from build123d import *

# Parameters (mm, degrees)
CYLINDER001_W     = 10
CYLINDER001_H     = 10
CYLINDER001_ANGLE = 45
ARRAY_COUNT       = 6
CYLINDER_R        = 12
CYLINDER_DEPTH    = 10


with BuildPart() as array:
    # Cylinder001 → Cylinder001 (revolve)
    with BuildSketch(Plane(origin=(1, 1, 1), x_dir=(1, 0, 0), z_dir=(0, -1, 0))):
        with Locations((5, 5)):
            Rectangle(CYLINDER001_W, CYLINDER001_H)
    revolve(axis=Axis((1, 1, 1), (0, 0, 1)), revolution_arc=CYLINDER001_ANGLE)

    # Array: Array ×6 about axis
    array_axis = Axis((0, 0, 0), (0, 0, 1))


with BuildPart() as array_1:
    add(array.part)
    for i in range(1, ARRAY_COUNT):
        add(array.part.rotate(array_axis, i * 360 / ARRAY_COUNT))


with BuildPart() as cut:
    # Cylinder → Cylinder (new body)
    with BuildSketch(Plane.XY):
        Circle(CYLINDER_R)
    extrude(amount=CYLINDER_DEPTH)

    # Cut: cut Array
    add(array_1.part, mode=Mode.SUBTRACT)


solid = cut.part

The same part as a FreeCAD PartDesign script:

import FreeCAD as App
import Part
import Sketcher
from FreeCAD import Vector


def add_polygon(sketch, points):
    """Adds a closed chain of lines whose ends are joined by coincident constraints."""
    first, n = sketch.GeometryCount, len(points)
    for a, b in zip(points, points[1:] + points[:1]):
        sketch.addGeometry(Part.LineSegment(App.Vector(*a, 0), App.Vector(*b, 0)), False)
    for i in range(n):
        sketch.addConstraint(Sketcher.Constraint("Coincident", first + i, 2, first + (i + 1) % n, 1))

doc = App.newDocument("Part")
body = doc.addObject("PartDesign::Body", "Body")

# Sketch on XZ plane
sketch1 = body.newObject("Sketcher::SketchObject", "Sketch")
sketch1.AttachmentSupport = (doc.getObject("XZ_Plane"), [""])
sketch1.MapMode = "FlatFace"
sketch1.AttachmentOffset = App.Placement(Vector(0, 0, -1), App.Rotation())
add_polygon(sketch1, [(1, 11), (1, 1), (11, 1), (11, 11)])  # lines 0-3
sketch1.addGeometry(Part.LineSegment(Vector(1, 1, 0), Vector(1, 11, 0)), True)  # axis
sketch1.addConstraint([
    Sketcher.Constraint("Vertical", 0),
    Sketcher.Constraint("Horizontal", 1),
    Sketcher.Constraint("Vertical", 2),
    Sketcher.Constraint("Horizontal", 3),
    Sketcher.Constraint("Vertical", 4),
    Sketcher.Constraint("Coincident", 4, 1, 0, 2),
    Sketcher.Constraint("Horizontal", 2, 2, 4, 2),
    Sketcher.Constraint("Equal", 3, 0),
    Sketcher.Constraint("DistanceX", 1, 1, 1, 2, 10.0),
    Sketcher.Constraint("DistanceX", -1, 1, 0, 2, 1.0),
    Sketcher.Constraint("DistanceY", -1, 1, 0, 2, 1.0),
])
revolution = body.newObject("PartDesign::Revolution", "Revolution")
revolution.Profile = sketch1
revolution.ReferenceAxis = (sketch1, ["Axis0"])
revolution.Angle = 45
body2 = doc.addObject("PartDesign::Body", "Body001")
body2.AllowCompound = True
doc.recompute()

body2.BaseFeature = body
doc.recompute()

body3 = doc.addObject("PartDesign::Body", "Body002")
body3.BaseFeature = body
body3.Placement = App.Placement(Vector(0, 0, 0), App.Rotation(Vector(0, 0, 1), 60))
boolean = body2.newObject("PartDesign::Boolean", "Boolean")
boolean.Type = "Fuse"
boolean.addObjects([body3])
doc.recompute()

body4 = doc.addObject("PartDesign::Body", "Body003")
body4.BaseFeature = body
body4.Placement = App.Placement(Vector(0, 0, 0), App.Rotation(Vector(0, 0, 1), 120))
boolean2 = body2.newObject("PartDesign::Boolean", "Boolean001")
boolean2.Type = "Fuse"
boolean2.addObjects([body4])
doc.recompute()

body5 = doc.addObject("PartDesign::Body", "Body004")
body5.BaseFeature = body
body5.Placement = App.Placement(Vector(0, 0, 0), App.Rotation(Vector(0, 0, 1), 180))
boolean3 = body2.newObject("PartDesign::Boolean", "Boolean002")
boolean3.Type = "Fuse"
boolean3.addObjects([body5])
doc.recompute()

body6 = doc.addObject("PartDesign::Body", "Body005")
body6.BaseFeature = body
body6.Placement = App.Placement(Vector(0, 0, 0), App.Rotation(Vector(0, 0, 1), 240))
boolean4 = body2.newObject("PartDesign::Boolean", "Boolean003")
boolean4.Type = "Fuse"
boolean4.addObjects([body6])
doc.recompute()

body.Placement = App.Placement(Vector(0, 0, 0), App.Rotation(Vector(0, 0, 1), 300))
boolean5 = body2.newObject("PartDesign::Boolean", "Boolean004")
boolean5.Type = "Fuse"
boolean5.addObjects([body])
body7 = doc.addObject("PartDesign::Body", "Body006")

# Sketch on XY plane
sketch2 = body7.newObject("Sketcher::SketchObject", "Sketch001")
sketch2.AttachmentSupport = (doc.getObject("XY_Plane006"), [""])
sketch2.MapMode = "FlatFace"
sketch2.addGeometry(Part.Circle(Vector(0, 0, 0), Vector(0, 0, 1), 12), False)
sketch2.addConstraint([
    Sketcher.Constraint("Coincident", 0, 3, -1, 1),
    Sketcher.Constraint("Diameter", 0, 24.0),
])
pad1 = body7.newObject("PartDesign::Pad", "Pad")
pad1.Profile = sketch2
pad1.Length = 10
doc.recompute()

boolean6 = body7.newObject("PartDesign::Boolean", "Boolean005")
boolean6.Type = "Cut"
boolean6.addObjects([body2])

doc.recompute()
